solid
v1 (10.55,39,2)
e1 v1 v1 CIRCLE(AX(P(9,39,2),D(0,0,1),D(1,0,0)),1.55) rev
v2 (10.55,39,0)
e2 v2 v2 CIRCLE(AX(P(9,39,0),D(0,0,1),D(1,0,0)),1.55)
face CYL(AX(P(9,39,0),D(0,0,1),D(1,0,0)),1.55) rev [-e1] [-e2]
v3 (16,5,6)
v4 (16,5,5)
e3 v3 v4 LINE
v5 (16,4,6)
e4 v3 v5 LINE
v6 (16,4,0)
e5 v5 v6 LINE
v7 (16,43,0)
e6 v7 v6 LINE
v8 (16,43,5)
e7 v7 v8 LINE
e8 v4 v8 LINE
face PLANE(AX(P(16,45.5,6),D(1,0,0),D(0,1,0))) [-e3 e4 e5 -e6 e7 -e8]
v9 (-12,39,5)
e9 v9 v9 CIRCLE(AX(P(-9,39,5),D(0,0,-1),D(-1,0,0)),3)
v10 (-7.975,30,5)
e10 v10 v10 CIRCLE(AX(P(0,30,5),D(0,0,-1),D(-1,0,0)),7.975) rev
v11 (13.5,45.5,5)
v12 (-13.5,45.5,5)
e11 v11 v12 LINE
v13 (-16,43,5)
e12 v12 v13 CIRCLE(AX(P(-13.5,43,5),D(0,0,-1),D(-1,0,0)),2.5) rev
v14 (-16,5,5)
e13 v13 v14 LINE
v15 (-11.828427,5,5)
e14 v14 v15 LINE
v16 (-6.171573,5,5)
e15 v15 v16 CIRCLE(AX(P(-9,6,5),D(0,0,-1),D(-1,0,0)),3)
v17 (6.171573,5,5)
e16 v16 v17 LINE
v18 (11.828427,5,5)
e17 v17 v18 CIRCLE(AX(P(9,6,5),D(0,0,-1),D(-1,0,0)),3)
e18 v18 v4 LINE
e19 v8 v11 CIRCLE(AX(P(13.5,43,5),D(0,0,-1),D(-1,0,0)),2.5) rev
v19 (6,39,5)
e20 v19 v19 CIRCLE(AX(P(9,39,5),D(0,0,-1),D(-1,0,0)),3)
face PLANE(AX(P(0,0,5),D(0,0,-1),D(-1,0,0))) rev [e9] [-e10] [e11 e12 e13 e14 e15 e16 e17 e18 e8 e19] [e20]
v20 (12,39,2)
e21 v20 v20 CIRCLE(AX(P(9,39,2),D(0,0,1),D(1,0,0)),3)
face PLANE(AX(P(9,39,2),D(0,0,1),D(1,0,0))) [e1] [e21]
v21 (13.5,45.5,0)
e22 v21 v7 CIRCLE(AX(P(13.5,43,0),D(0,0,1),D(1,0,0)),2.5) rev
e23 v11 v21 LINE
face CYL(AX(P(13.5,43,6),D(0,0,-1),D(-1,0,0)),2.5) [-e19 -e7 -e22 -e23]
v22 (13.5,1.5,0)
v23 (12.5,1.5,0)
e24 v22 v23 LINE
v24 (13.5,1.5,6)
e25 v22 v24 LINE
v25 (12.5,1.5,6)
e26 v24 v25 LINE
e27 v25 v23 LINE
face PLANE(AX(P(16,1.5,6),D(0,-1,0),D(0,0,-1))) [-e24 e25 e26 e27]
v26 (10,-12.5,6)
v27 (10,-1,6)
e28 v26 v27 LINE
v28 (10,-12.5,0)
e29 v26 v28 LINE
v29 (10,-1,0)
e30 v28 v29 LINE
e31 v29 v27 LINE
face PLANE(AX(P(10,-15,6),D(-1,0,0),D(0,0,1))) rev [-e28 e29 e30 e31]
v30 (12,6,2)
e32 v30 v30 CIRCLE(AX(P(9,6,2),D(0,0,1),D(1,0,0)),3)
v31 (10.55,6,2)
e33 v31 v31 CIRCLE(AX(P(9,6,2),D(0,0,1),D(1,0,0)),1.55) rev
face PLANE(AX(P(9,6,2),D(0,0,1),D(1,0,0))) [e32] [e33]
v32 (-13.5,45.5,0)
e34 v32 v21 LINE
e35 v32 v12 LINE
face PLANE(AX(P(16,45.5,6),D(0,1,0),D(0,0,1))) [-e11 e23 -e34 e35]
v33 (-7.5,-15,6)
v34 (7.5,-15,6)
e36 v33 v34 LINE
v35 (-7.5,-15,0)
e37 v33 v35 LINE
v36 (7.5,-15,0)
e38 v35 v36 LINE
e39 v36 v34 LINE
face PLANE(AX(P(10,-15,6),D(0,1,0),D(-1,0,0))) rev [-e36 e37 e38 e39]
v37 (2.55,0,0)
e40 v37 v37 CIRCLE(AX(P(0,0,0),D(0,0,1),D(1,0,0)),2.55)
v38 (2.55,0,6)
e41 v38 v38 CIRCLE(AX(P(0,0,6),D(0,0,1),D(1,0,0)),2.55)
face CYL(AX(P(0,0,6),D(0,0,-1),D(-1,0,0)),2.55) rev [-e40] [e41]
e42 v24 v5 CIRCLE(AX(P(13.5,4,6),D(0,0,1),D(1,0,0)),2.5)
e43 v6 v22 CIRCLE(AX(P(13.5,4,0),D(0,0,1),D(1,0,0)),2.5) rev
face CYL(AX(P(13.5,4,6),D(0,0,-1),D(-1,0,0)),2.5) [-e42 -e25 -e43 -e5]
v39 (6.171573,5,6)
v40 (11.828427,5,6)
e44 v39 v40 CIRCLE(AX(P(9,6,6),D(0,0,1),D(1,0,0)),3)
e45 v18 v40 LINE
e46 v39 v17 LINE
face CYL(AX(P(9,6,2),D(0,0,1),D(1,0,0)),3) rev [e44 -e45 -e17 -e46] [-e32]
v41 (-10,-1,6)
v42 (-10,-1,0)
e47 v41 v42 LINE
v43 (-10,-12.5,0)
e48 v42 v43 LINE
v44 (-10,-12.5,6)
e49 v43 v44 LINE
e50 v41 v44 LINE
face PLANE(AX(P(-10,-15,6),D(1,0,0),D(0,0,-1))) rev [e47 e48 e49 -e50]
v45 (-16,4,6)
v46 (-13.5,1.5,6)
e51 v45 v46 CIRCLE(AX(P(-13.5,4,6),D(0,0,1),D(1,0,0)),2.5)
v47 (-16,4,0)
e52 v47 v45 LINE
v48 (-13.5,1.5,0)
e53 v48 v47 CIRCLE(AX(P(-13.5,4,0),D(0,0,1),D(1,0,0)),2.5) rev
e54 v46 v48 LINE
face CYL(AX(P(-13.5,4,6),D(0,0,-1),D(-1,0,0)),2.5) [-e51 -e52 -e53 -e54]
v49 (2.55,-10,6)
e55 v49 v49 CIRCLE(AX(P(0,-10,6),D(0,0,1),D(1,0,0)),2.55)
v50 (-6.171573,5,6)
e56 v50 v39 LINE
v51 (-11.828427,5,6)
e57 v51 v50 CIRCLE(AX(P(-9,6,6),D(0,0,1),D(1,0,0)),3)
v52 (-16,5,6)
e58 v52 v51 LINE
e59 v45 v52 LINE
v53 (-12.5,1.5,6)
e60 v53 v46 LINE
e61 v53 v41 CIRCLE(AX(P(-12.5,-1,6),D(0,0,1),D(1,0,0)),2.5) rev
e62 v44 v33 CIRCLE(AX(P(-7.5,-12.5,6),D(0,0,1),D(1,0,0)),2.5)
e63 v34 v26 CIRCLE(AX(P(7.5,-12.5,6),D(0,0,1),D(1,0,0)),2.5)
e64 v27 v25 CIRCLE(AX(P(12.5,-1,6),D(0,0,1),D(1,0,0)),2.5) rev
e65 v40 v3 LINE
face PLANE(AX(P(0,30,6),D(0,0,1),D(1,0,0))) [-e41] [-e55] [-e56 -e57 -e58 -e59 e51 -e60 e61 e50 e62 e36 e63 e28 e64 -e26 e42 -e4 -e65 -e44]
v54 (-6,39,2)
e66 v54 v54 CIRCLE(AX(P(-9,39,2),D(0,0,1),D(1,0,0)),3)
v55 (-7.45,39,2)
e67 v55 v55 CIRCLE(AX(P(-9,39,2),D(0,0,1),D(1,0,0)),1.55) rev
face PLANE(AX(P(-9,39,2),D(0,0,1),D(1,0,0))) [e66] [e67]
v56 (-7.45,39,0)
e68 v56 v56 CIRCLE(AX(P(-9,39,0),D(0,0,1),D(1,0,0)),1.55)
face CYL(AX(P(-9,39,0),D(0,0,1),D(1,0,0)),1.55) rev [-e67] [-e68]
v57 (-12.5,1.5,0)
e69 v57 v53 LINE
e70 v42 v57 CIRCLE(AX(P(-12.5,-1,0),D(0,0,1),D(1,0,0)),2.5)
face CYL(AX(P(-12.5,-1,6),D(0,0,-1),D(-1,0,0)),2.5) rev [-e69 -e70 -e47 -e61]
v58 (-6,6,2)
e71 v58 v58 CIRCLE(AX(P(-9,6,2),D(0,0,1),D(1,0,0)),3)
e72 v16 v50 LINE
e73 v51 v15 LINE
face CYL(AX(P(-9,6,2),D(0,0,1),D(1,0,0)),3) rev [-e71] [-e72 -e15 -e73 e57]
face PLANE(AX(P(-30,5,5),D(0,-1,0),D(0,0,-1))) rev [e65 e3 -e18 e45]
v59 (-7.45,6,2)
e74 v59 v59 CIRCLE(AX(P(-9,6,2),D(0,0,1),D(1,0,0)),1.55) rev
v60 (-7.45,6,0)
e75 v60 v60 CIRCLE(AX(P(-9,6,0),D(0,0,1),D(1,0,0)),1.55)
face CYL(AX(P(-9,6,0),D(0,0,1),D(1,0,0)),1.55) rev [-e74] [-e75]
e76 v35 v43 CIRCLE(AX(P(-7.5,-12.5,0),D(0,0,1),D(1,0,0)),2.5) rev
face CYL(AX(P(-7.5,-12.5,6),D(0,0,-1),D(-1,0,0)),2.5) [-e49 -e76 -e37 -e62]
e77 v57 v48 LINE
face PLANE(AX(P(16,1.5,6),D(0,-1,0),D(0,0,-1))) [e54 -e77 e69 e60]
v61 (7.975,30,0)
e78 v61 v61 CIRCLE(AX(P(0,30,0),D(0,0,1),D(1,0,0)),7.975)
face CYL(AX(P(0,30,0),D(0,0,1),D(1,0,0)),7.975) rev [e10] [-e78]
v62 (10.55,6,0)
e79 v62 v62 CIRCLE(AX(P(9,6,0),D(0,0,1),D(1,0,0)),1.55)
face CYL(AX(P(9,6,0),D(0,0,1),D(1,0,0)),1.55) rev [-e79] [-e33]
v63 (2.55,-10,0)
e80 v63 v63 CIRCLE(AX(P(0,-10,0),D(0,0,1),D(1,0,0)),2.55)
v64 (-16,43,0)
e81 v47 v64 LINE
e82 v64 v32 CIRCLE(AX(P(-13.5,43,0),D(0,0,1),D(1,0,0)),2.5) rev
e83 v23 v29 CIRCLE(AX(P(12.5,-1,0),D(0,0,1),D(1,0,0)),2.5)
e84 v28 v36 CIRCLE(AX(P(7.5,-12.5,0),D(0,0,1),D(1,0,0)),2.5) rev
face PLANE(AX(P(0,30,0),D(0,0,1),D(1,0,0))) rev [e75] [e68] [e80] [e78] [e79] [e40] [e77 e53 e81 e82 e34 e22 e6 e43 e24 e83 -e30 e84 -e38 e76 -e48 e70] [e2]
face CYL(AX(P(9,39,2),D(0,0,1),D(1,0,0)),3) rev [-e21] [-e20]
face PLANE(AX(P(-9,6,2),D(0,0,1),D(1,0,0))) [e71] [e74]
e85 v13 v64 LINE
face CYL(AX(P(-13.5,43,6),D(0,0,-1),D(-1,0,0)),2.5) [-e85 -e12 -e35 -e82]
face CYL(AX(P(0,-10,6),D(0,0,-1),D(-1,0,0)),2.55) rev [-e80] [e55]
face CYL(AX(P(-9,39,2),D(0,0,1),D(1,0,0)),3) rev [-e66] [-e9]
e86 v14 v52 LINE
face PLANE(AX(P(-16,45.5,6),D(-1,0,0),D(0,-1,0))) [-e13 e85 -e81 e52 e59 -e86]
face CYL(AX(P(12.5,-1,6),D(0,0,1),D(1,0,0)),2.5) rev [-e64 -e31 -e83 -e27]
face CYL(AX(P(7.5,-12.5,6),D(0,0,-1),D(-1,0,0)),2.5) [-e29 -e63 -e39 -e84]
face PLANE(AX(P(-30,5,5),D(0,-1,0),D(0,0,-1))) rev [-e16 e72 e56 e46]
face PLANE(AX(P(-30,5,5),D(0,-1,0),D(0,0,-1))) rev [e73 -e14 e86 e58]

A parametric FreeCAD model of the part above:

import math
import FreeCAD as App
import Part
import Sketcher
from FreeCAD import Vector


def edges_at(feature, points):
    """Names of the edges that pass closest to the given points."""
    edges = feature.Shape.Edges
    near = lambda p: min(range(len(edges)), key=lambda i: edges[i].distToShape(Part.Vertex(*p))[0])
    return sorted({f"Edge{near(p) + 1}" for p in points})


def add_polygon(sketch, points):
    """Adds a closed chain of lines whose ends are joined by coincident constraints."""
    first, n = sketch.GeometryCount, len(points)
    for a, b in zip(points, points[1:] + points[:1]):
        sketch.addGeometry(Part.LineSegment(App.Vector(*a, 0), App.Vector(*b, 0)), False)
    for i in range(n):
        sketch.addConstraint(Sketcher.Constraint("Coincident", first + i, 2, first + (i + 1) % n, 1))

doc = App.newDocument("Part")
body = doc.addObject("PartDesign::Body", "Body")

# Sketch on XY plane
sketch1 = body.newObject("Sketcher::SketchObject", "Sketch")
sketch1.AttachmentSupport = (doc.getObject("XY_Plane"), [""])
sketch1.MapMode = "FlatFace"
sketch1.addGeometry(Part.LineSegment(Vector(-10, 15, 0), Vector(-10, -15, 0)), False)
sketch1.addGeometry(Part.LineSegment(Vector(-10, -15, 0), Vector(10, -15, 0)), False)
sketch1.addGeometry(Part.LineSegment(Vector(10, -15, 0), Vector(10, 15, 0)), False)
sketch1.addGeometry(Part.LineSegment(Vector(10, 15, 0), Vector(15, 30, 0)), False)
sketch1.addGeometry(Part.ArcOfCircle(Part.Circle(Vector(0, 30, 0), Vector(0, 0, 1), 15), math.radians(0), math.radians(180)), False)
sketch1.addGeometry(Part.LineSegment(Vector(-15, 30, 0), Vector(-10, 15, 0)), False)
sketch1.addGeometry(Part.Circle(Vector(0, -10, 0), Vector(0, 0, 1), 2.5), False)
sketch1.addGeometry(Part.Circle(Vector(0, 0, 0), Vector(0, 0, 1), 2.5), False)
sketch1.addConstraint(Sketcher.Constraint("Coincident", 0, 2, 1, 1))
sketch1.addConstraint(Sketcher.Constraint("Coincident", 1, 2, 2, 1))
sketch1.addConstraint(Sketcher.Constraint("Coincident", 2, 2, 3, 1))
sketch1.addConstraint(Sketcher.Constraint("Coincident", 3, 2, 4, 1))
sketch1.addConstraint(Sketcher.Constraint("Coincident", 4, 2, 5, 1))
sketch1.addConstraint(Sketcher.Constraint("Coincident", 5, 2, 0, 1))
sketch1.addConstraint(Sketcher.Constraint("Vertical", 0))
sketch1.addConstraint(Sketcher.Constraint("Horizontal", 1))
sketch1.addConstraint(Sketcher.Constraint("Vertical", 2))
sketch1.addConstraint(Sketcher.Constraint("Coincident", 7, 3, -1, 1))
sketch1.addConstraint(Sketcher.Constraint("Equal", 6, 7))
sketch1.addConstraint(Sketcher.Constraint("Symmetric", 0, 2, 2, 2, -1, 1))
sketch1.addConstraint(Sketcher.Constraint("Symmetric", 3, 2, 4, 2, -2))
sketch1.addConstraint(Sketcher.Constraint("PointOnObject", 6, 3, -2))
sketch1.addConstraint(Sketcher.Constraint("Horizontal", 4, 3, 3, 2))
sketch1.addConstraint(Sketcher.Constraint("Horizontal", 2, 2, 5, 2))
sketch1.addConstraint(Sketcher.Constraint("Radius", 4, 15.0))
sketch1.addConstraint(Sketcher.Constraint("Diameter", 6, 5.1))
sketch1.addConstraint(Sketcher.Constraint("DistanceX", 1, 1, 1, 2, 20.0))
sketch1.addConstraint(Sketcher.Constraint("DistanceY", 0, 2, 0, 1, 30.0))
sketch1.addConstraint(Sketcher.Constraint("DistanceY", -1, 1, 4, 3, 30.0))
sketch1.addConstraint(Sketcher.Constraint("DistanceY", 6, 3, -1, 1, 10.0))
pad1 = body.newObject("PartDesign::Pad", "Pad")
pad1.Profile = sketch1
pad1.Length = 6

# Sketch on XY plane
sketch2 = body.newObject("Sketcher::SketchObject", "Sketch001")
sketch2.AttachmentSupport = (doc.getObject("XY_Plane"), [""])
sketch2.MapMode = "FlatFace"
add_polygon(sketch2, [(16, 46), (16, 2), (-16, 2), (-16, 46)])  # lines 0-3
sketch2.addConstraint(Sketcher.Constraint("Vertical", 0))
sketch2.addConstraint(Sketcher.Constraint("Horizontal", 1))
sketch2.addConstraint(Sketcher.Constraint("Vertical", 2))
sketch2.addConstraint(Sketcher.Constraint("Horizontal", 3))
sketch2.addConstraint(Sketcher.Constraint("DistanceX", 1, 2, 1, 1, 32.0))
sketch2.addConstraint(Sketcher.Constraint("DistanceY", 0, 2, 0, 1, 44.0))
sketch2.addConstraint(Sketcher.Constraint("DistanceX", -1, 1, 0, 2, 16.0))
sketch2.addConstraint(Sketcher.Constraint("DistanceY", -1, 1, 0, 2, 1.5))
pad2 = body.newObject("PartDesign::Pad", "Pad001")
pad2.Profile = sketch2
pad2.Length = 6
doc.recompute()

fillet = body.newObject("PartDesign::Fillet", "Fillet")
fillet.Base = (pad2, edges_at(pad2, [
    (10, -15, 3),
    (-10, -15, 3),
    (-16, 1.5, 3),
    (-10, 1.5, 3),
    (10, 1.5, 3),
    (16, 1.5, 3),
    (16, 45.5, 3),
    (-16, 45.5, 3),
]))
fillet.Radius = 2.5

# Sketch on XY plane
sketch3 = body.newObject("Sketcher::SketchObject", "Sketch002")
sketch3.AttachmentSupport = (doc.getObject("XY_Plane"), [""])
sketch3.MapMode = "FlatFace"
sketch3.AttachmentOffset = App.Placement(Vector(0, 0, 6), App.Rotation())
sketch3.addGeometry(Part.Circle(Vector(0, 30, 0), Vector(0, 0, 1), 8), False)
sketch3.addConstraint(Sketcher.Constraint("PointOnObject", 0, 3, -2))
sketch3.addConstraint(Sketcher.Constraint("Diameter", 0, 15.95))
sketch3.addConstraint(Sketcher.Constraint("DistanceY", -1, 1, 0, 3, 30.0))
pocket1 = body.newObject("PartDesign::Pocket", "Pocket")
pocket1.Profile = sketch3
pocket1.Type = "ThroughAll"

# Sketch on XY plane
sketch4 = body.newObject("Sketcher::SketchObject", "Sketch003")
sketch4.AttachmentSupport = (doc.getObject("XY_Plane"), [""])
sketch4.MapMode = "FlatFace"
sketch4.AttachmentOffset = App.Placement(Vector(0, 0, 6), App.Rotation())
sketch4.addGeometry(Part.Circle(Vector(-9, 39, 0), Vector(0, 0, 1), 1.6), False)
sketch4.addGeometry(Part.Circle(Vector(9, 39, 0), Vector(0, 0, 1), 1.6), False)
sketch4.addGeometry(Part.Circle(Vector(9, 6, 0), Vector(0, 0, 1), 1.6), False)
sketch4.addGeometry(Part.Circle(Vector(-9, 6, 0), Vector(0, 0, 1), 1.6), False)
sketch4.addConstraint(Sketcher.Constraint("Equal", 0, 1))
sketch4.addConstraint(Sketcher.Constraint("Equal", 1, 2))
sketch4.addConstraint(Sketcher.Constraint("Equal", 2, 3))
sketch4.addConstraint(Sketcher.Constraint("Symmetric", 0, 3, 1, 3, -2))
sketch4.addConstraint(Sketcher.Constraint("Symmetric", 2, 3, 3, 3, -2))
sketch4.addConstraint(Sketcher.Constraint("Vertical", 1, 3, 2, 3))
sketch4.addConstraint(Sketcher.Constraint("Diameter", 0, 3.1))
sketch4.addConstraint(Sketcher.Constraint("DistanceX", 0, 3, -1, 1, 9.0))
sketch4.addConstraint(Sketcher.Constraint("DistanceY", -1, 1, 0, 3, 39.0))
sketch4.addConstraint(Sketcher.Constraint("DistanceY", -1, 1, 2, 3, 6.0))
pocket2 = body.newObject("PartDesign::Pocket", "Pocket001")
pocket2.Profile = sketch4
pocket2.Type = "ThroughAll"

# Sketch on XY plane
sketch5 = body.newObject("Sketcher::SketchObject", "Sketch004")
sketch5.AttachmentSupport = (doc.getObject("XY_Plane"), [""])
sketch5.MapMode = "FlatFace"
sketch5.AttachmentOffset = App.Placement(Vector(0, 0, 6), App.Rotation())
add_polygon(sketch5, [(-30, 55), (-30, 5), (30, 5), (30, 55)])  # lines 0-3
sketch5.addConstraint(Sketcher.Constraint("Vertical", 0))
sketch5.addConstraint(Sketcher.Constraint("Horizontal", 1))
sketch5.addConstraint(Sketcher.Constraint("Vertical", 2))
sketch5.addConstraint(Sketcher.Constraint("Horizontal", 3))
sketch5.addConstraint(Sketcher.Constraint("DistanceX", 1, 1, 1, 2, 60.0))
sketch5.addConstraint(Sketcher.Constraint("DistanceY", 0, 2, 0, 1, 50.0))
sketch5.addConstraint(Sketcher.Constraint("DistanceX", 0, 2, -1, 1, 30.0))
sketch5.addConstraint(Sketcher.Constraint("DistanceY", -1, 1, 0, 2, 5.0))
pocket3 = body.newObject("PartDesign::Pocket", "Pocket002")
pocket3.Profile = sketch5
pocket3.Length = 1

# Sketch on XY plane
sketch6 = body.newObject("Sketcher::SketchObject", "Sketch005")
sketch6.AttachmentSupport = (doc.getObject("XY_Plane"), [""])
sketch6.MapMode = "FlatFace"
sketch6.AttachmentOffset = App.Placement(Vector(0, 0, 6), App.Rotation())
sketch6.addGeometry(Part.Circle(Vector(-9, 39, 0), Vector(0, 0, 1), 3), False)
sketch6.addGeometry(Part.Circle(Vector(9, 39, 0), Vector(0, 0, 1), 3), False)
sketch6.addGeometry(Part.Circle(Vector(9, 6, 0), Vector(0, 0, 1), 3), False)
sketch6.addGeometry(Part.Circle(Vector(-9, 6, 0), Vector(0, 0, 1), 3), False)
sketch6.addConstraint(Sketcher.Constraint("Equal", 0, 1))
sketch6.addConstraint(Sketcher.Constraint("Equal", 1, 2))
sketch6.addConstraint(Sketcher.Constraint("Equal", 2, 3))
sketch6.addConstraint(Sketcher.Constraint("Symmetric", 0, 3, 1, 3, -2))
sketch6.addConstraint(Sketcher.Constraint("Symmetric", 2, 3, 3, 3, -2))
sketch6.addConstraint(Sketcher.Constraint("Vertical", 1, 3, 2, 3))
sketch6.addConstraint(Sketcher.Constraint("Diameter", 0, 6.0))
sketch6.addConstraint(Sketcher.Constraint("DistanceX", 0, 3, -1, 1, 9.0))
sketch6.addConstraint(Sketcher.Constraint("DistanceY", -1, 1, 0, 3, 39.0))
sketch6.addConstraint(Sketcher.Constraint("DistanceY", -1, 1, 2, 3, 6.0))
pocket4 = body.newObject("PartDesign::Pocket", "Pocket003")
pocket4.Profile = sketch6
pocket4.Length = 4

# Sketch on XY plane
sketch7 = body.newObject("Sketcher::SketchObject", "Sketch006")
sketch7.AttachmentSupport = (doc.getObject("XY_Plane"), [""])
sketch7.MapMode = "FlatFace"
sketch7.AttachmentOffset = App.Placement(Vector(0, 0, 6), App.Rotation())
sketch7.addGeometry(Part.Circle(Vector(0, -10, 0), Vector(0, 0, 1), 2.5), False)
sketch7.addGeometry(Part.Circle(Vector(0, 0, 0), Vector(0, 0, 1), 2.5), False)
sketch7.addConstraint(Sketcher.Constraint("Coincident", 1, 3, -1, 1))
sketch7.addConstraint(Sketcher.Constraint("Equal", 0, 1))
sketch7.addConstraint(Sketcher.Constraint("PointOnObject", 0, 3, -2))
sketch7.addConstraint(Sketcher.Constraint("Diameter", 0, 5.1))
sketch7.addConstraint(Sketcher.Constraint("DistanceY", 0, 3, -1, 1, 10.0))
pocket5 = body.newObject("PartDesign::Pocket", "Pocket004")
pocket5.Profile = sketch7
pocket5.Type = "ThroughAll"

doc.recompute()
